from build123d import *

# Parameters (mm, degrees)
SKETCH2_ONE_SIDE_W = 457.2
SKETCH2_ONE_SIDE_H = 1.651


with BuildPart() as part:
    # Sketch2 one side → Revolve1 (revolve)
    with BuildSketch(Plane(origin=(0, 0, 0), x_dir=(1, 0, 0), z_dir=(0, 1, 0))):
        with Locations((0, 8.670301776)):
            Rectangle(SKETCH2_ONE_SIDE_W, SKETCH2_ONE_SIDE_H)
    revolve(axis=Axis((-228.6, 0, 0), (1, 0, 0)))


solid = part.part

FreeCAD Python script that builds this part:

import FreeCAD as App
import Part
import Sketcher
from FreeCAD import Vector
Q = App.Units.Quantity

doc = App.newDocument("Part")
body = doc.addObject("PartDesign::Body", "Body")

# Sketch on XZ plane
sketch1 = doc.addObject("Sketcher::SketchObject", "Sketch")
body.addObject(sketch1)
sketch1.AttachmentSupport = (doc.XZ_Plane, [""])
sketch1.MapMode = "FlatFace"
sketch1.addGeometry(Part.LineSegment(Vector(-228.6, -9.5, 0), Vector(-228.6, -7.8, 0)), False)
sketch1.addGeometry(Part.LineSegment(Vector(-228.6, -7.8, 0), Vector(228.6, -7.8, 0)), False)
sketch1.addGeometry(Part.LineSegment(Vector(228.6, -7.8, 0), Vector(228.6, -9.5, 0)), False)
sketch1.addGeometry(Part.LineSegment(Vector(228.6, -9.5, 0), Vector(-228.6, -9.5, 0)), False)
sketch1.addConstraint(Sketcher.Constraint("Coincident", 0, 2, 1, 1))
sketch1.addConstraint(Sketcher.Constraint("Coincident", 1, 2, 2, 1))
sketch1.addConstraint(Sketcher.Constraint("Coincident", 2, 2, 3, 1))
sketch1.addConstraint(Sketcher.Constraint("Coincident", 3, 2, 0, 1))
sketch1.addConstraint(Sketcher.Constraint("Vertical", 0))
sketch1.addConstraint(Sketcher.Constraint("Horizontal", 1))
sketch1.addConstraint(Sketcher.Constraint("Vertical", 2))
sketch1.addConstraint(Sketcher.Constraint("Horizontal", 3))
sketch1.addConstraint(Sketcher.Constraint("DistanceX", 1, 1, 1, 2, Q("18 in")))
sketch1.addConstraint(Sketcher.Constraint("DistanceX", 0, 2, -1, 1, Q("9 in")))
sketch1.addConstraint(Sketcher.Constraint("DistanceY", 0, 1, 0, 2, Q("0.065 in")))
sketch1.addConstraint(Sketcher.Constraint("DistanceY", 0, 2, -1, 1, Q("7.844802 mm")))
revolution = doc.addObject("PartDesign::Revolution", "Revolution")
body.addObject(revolution)
revolution.Profile = sketch1
revolution.ReferenceAxis = (sketch1, ["H_Axis"])
revolution.Angle = 360

doc.recompute()
